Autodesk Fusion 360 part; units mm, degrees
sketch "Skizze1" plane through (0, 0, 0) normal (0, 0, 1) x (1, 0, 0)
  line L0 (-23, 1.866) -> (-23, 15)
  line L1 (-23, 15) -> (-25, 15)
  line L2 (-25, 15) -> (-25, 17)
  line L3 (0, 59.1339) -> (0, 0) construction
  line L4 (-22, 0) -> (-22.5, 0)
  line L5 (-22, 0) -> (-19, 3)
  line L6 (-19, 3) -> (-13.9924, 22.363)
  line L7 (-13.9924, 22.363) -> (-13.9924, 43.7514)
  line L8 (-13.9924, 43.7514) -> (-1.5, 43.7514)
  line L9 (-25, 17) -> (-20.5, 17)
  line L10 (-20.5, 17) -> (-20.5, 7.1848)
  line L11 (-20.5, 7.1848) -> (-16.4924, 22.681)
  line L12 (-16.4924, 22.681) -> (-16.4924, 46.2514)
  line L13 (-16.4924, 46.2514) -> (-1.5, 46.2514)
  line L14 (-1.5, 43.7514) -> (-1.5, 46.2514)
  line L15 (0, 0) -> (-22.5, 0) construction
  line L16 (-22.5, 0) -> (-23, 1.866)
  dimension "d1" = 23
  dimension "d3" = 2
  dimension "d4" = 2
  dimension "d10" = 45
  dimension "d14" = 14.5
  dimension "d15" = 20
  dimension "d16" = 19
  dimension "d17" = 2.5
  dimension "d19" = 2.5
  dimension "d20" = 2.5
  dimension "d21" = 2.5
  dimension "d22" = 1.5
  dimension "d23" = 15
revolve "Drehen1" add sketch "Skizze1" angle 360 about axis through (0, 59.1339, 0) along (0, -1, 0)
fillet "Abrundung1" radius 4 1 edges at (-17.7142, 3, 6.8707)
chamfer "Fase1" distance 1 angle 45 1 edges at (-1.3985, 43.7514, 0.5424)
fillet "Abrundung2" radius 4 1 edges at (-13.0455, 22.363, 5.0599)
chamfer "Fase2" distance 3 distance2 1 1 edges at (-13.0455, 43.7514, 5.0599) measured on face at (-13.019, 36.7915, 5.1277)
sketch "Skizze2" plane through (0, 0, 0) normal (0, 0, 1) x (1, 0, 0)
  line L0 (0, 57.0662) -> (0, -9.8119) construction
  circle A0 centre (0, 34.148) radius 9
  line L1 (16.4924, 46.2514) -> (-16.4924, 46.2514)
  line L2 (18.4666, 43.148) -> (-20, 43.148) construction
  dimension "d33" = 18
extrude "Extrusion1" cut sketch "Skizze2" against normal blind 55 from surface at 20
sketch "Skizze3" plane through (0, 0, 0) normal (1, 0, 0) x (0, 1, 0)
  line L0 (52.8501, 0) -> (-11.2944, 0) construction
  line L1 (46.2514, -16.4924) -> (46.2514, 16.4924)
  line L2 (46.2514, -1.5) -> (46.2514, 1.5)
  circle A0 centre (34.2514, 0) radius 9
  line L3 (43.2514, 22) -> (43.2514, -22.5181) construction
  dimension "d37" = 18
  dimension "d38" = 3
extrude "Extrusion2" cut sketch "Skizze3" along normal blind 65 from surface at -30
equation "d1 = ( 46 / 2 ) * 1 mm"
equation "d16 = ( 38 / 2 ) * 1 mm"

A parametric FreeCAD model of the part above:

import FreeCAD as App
import Part
import Sketcher
from FreeCAD import Vector
Q = App.Units.Quantity


def edges_at(feature, points):
    """Names of the edges that pass closest to the given points."""
    edges = feature.Shape.Edges
    near = lambda p: min(range(len(edges)), key=lambda i: edges[i].distToShape(Part.Vertex(*p))[0])
    return sorted({f"Edge{near(p) + 1}" for p in points})


def add_polygon(sketch, points):
    """Adds a closed chain of lines whose ends are joined by coincident constraints."""
    first, n = sketch.GeometryCount, len(points)
    for a, b in zip(points, points[1:] + points[:1]):
        sketch.addGeometry(Part.LineSegment(App.Vector(*a, 0), App.Vector(*b, 0)), False)
    for i in range(n):
        sketch.addConstraint(Sketcher.Constraint("Coincident", first + i, 2, first + (i + 1) % n, 1))

doc = App.newDocument("Part")
params = doc.addObject("Spreadsheet::Sheet", "Params")
for row, (alias, value) in enumerate([
    ("sketch1_width", "2 mm"),
    ("sketch1_length", "20 mm"),
    ("sketch1_height", "2.5 mm"),
    ("revolution_angle", "360 deg"),
    ("fillet_radius", "4 mm"),
    ("chamfer_size", "1 mm"),
    ("fillet2_radius", "4 mm"),
    ("chamfer2_size", "3 mm"),
    ("chamfer2_size2", "1 mm"),
    ("sketch2_diameter", "18 mm"),
    ("pocket1_length", "55 mm"),
    ("sketch3_diameter", "18 mm"),
    ("pocket2_length", "65 mm"),
], start=1):
    params.set(f"A{row}", alias)
    params.set(f"B{row}", "=" + value)
    params.setAlias(f"B{row}", alias)

body = doc.addObject("PartDesign::Body", "Body")

# Sketch on XY plane
sketch1 = body.newObject("Sketcher::SketchObject", "Sketch")
sketch1.AttachmentSupport = (doc.getObject("XY_Plane"), [""])
sketch1.MapMode = "FlatFace"
add_polygon(sketch1, [(-23, 15), (-23, 1.9), (-22.5, 0), (-22, 0), (-19, 3), (-14, 22.4), (-14, 43.8), (-1.5, 43.8), (-1.5, 46.3), (-16.5, 46.3), (-16.5, 22.7), (-20.5, 7.2), (-20.5, 17), (-25, 17), (-25, 15)])  # lines 0-14
sketch1.addConstraint(Sketcher.Constraint("Vertical", 0))
sketch1.addConstraint(Sketcher.Constraint("Horizontal", 2))
sketch1.addConstraint(Sketcher.Constraint("Vertical", 5))
sketch1.addConstraint(Sketcher.Constraint("Horizontal", 6))
sketch1.addConstraint(Sketcher.Constraint("Vertical", 7))
sketch1.addConstraint(Sketcher.Constraint("Horizontal", 8))
sketch1.addConstraint(Sketcher.Constraint("Vertical", 9))
sketch1.addConstraint(Sketcher.Constraint("Vertical", 11))
sketch1.addConstraint(Sketcher.Constraint("Horizontal", 12))
sketch1.addConstraint(Sketcher.Constraint("Vertical", 13))
sketch1.addConstraint(Sketcher.Constraint("Horizontal", 14))
sketch1.addConstraint(Sketcher.Constraint("PointOnObject", 1, 2, -1))
sketch1.addConstraint(Sketcher.Constraint("Parallel", 4, 10))
sketch1.addConstraint(Sketcher.Constraint("Equal", 14, 13))
sketch1.addConstraint(Sketcher.Constraint("DistanceX", 14, 1, 14, 2, Q("2 mm")))
sketch1.addConstraint(Sketcher.Constraint("Angle", 3, Q("45 deg")))
sketch1.addConstraint(Sketcher.Constraint("Distance", 4, Q("20 mm")))
sketch1.addConstraint(Sketcher.Constraint("DistanceY", 7, 1, 7, 2, Q("2.5 mm")))
sketch1.addConstraint(Sketcher.Constraint("DistanceX", 0, 2, -1, 1, Q("23 mm")))
sketch1.addConstraint(Sketcher.Constraint("DistanceX", 3, 2, -1, 1, Q("19 mm")))
sketch1.addConstraint(Sketcher.Constraint("DistanceY", -1, 1, 13, 2, Q("15 mm")))
sketch1.addConstraint(Sketcher.Constraint("DistanceX", 1, 2, 10, 2, Q("2 mm")))
sketch1.addConstraint(Sketcher.Constraint("DistanceX", 6, 2, -1, 1, Q("1.5 mm")))
sketch1.addConstraint(Sketcher.Constraint("DistanceX", 8, 2, 5, 2, Q("2.5 mm")))
sketch1.addConstraint(Sketcher.Constraint("DistanceX", 10, 2, 3, 2, Q("1.5 mm")))
sketch1.addConstraint(Sketcher.Constraint("DistanceX", 2, 2, 10, 2, Q("1.5 mm")))
sketch1.addConstraint(Sketcher.Constraint("Angle", 1, Q("-74.9998 deg")))
sketch1.addConstraint(Sketcher.Constraint("Angle", 4, Q("75.5 deg")))
sketch1.addConstraint(Sketcher.Constraint("DistanceY", 5, 1, 5, 2, Q("21.3884 mm")))
sketch1.addConstraint(Sketcher.Constraint("DistanceY", 9, 2, 9, 1, Q("23.5704 mm")))
sketch1.setExpression("Constraints[29]", "Params.sketch1_width")
sketch1.setExpression("Constraints[31]", "Params.sketch1_length")
sketch1.setExpression("Constraints[32]", "Params.sketch1_height")
revolution = body.newObject("PartDesign::Revolution", "Revolution")
revolution.Profile = sketch1
revolution.ReferenceAxis = (sketch1, ["V_Axis"])
revolution.setExpression("Angle", "Params.revolution_angle")
doc.recompute()

fillet = body.newObject("PartDesign::Fillet", "Fillet")
fillet.Base = (revolution, edges_at(revolution, [(-17.714, 3, 6.871)]))
fillet.setExpression("Radius", "Params.fillet_radius")
doc.recompute()

chamfer = body.newObject("PartDesign::Chamfer", "Chamfer")
chamfer.Base = (fillet, edges_at(fillet, [(-1.399, 43.751, 0.542)]))
chamfer.setExpression("Size", "Params.chamfer_size")
doc.recompute()

fillet2 = body.newObject("PartDesign::Fillet", "Fillet001")
fillet2.Base = (chamfer, edges_at(chamfer, [(-13.046, 22.363, 5.06)]))
fillet2.setExpression("Radius", "Params.fillet2_radius")
doc.recompute()

chamfer2 = body.newObject("PartDesign::Chamfer", "Chamfer001")
chamfer2.Base = (fillet2, edges_at(fillet2, [(-13.046, 43.751, 5.06)]))
chamfer2.ChamferType = "Two distances"
chamfer2.setExpression("Size", "Params.chamfer2_size")
chamfer2.setExpression("Size2", "Params.chamfer2_size2")

# Sketch on XY plane
sketch2 = body.newObject("Sketcher::SketchObject", "Sketch001")
sketch2.AttachmentSupport = (doc.getObject("XY_Plane"), [""])
sketch2.MapMode = "FlatFace"
sketch2.AttachmentOffset = App.Placement(Vector(0, 0, 20), App.Rotation())
sketch2.addGeometry(Part.Circle(Vector(0, 34, 0), Vector(0, 0, 1), 9), False)
sketch2.addConstraint(Sketcher.Constraint("PointOnObject", 0, 3, -2))
sketch2.addConstraint(Sketcher.Constraint("Diameter", 0, Q("18 mm")))
sketch2.addConstraint(Sketcher.Constraint("DistanceY", -1, 1, 0, 3, Q("34.148 mm")))
sketch2.setExpression("Constraints[1]", "Params.sketch2_diameter")
pocket1 = body.newObject("PartDesign::Pocket", "Pocket")
pocket1.Profile = sketch2
pocket1.setExpression("Length", "Params.pocket1_length")

# Sketch on YZ plane
sketch3 = body.newObject("Sketcher::SketchObject", "Sketch002")
sketch3.AttachmentSupport = (doc.getObject("YZ_Plane"), [""])
sketch3.MapMode = "FlatFace"
sketch3.AttachmentOffset = App.Placement(Vector(0, 0, -30), App.Rotation())
sketch3.addGeometry(Part.Circle(Vector(34, 0, 0), Vector(0, 0, 1), 9), False)
sketch3.addConstraint(Sketcher.Constraint("PointOnObject", 0, 3, -1))
sketch3.addConstraint(Sketcher.Constraint("Diameter", 0, Q("18 mm")))
sketch3.addConstraint(Sketcher.Constraint("DistanceX", -1, 1, 0, 3, Q("34.2514 mm")))
sketch3.setExpression("Constraints[1]", "Params.sketch3_diameter")
pocket2 = body.newObject("PartDesign::Pocket", "Pocket001")
pocket2.Profile = sketch3
pocket2.setExpression("Length", "Params.pocket2_length")
pocket2.Reversed = True

doc.recompute()
